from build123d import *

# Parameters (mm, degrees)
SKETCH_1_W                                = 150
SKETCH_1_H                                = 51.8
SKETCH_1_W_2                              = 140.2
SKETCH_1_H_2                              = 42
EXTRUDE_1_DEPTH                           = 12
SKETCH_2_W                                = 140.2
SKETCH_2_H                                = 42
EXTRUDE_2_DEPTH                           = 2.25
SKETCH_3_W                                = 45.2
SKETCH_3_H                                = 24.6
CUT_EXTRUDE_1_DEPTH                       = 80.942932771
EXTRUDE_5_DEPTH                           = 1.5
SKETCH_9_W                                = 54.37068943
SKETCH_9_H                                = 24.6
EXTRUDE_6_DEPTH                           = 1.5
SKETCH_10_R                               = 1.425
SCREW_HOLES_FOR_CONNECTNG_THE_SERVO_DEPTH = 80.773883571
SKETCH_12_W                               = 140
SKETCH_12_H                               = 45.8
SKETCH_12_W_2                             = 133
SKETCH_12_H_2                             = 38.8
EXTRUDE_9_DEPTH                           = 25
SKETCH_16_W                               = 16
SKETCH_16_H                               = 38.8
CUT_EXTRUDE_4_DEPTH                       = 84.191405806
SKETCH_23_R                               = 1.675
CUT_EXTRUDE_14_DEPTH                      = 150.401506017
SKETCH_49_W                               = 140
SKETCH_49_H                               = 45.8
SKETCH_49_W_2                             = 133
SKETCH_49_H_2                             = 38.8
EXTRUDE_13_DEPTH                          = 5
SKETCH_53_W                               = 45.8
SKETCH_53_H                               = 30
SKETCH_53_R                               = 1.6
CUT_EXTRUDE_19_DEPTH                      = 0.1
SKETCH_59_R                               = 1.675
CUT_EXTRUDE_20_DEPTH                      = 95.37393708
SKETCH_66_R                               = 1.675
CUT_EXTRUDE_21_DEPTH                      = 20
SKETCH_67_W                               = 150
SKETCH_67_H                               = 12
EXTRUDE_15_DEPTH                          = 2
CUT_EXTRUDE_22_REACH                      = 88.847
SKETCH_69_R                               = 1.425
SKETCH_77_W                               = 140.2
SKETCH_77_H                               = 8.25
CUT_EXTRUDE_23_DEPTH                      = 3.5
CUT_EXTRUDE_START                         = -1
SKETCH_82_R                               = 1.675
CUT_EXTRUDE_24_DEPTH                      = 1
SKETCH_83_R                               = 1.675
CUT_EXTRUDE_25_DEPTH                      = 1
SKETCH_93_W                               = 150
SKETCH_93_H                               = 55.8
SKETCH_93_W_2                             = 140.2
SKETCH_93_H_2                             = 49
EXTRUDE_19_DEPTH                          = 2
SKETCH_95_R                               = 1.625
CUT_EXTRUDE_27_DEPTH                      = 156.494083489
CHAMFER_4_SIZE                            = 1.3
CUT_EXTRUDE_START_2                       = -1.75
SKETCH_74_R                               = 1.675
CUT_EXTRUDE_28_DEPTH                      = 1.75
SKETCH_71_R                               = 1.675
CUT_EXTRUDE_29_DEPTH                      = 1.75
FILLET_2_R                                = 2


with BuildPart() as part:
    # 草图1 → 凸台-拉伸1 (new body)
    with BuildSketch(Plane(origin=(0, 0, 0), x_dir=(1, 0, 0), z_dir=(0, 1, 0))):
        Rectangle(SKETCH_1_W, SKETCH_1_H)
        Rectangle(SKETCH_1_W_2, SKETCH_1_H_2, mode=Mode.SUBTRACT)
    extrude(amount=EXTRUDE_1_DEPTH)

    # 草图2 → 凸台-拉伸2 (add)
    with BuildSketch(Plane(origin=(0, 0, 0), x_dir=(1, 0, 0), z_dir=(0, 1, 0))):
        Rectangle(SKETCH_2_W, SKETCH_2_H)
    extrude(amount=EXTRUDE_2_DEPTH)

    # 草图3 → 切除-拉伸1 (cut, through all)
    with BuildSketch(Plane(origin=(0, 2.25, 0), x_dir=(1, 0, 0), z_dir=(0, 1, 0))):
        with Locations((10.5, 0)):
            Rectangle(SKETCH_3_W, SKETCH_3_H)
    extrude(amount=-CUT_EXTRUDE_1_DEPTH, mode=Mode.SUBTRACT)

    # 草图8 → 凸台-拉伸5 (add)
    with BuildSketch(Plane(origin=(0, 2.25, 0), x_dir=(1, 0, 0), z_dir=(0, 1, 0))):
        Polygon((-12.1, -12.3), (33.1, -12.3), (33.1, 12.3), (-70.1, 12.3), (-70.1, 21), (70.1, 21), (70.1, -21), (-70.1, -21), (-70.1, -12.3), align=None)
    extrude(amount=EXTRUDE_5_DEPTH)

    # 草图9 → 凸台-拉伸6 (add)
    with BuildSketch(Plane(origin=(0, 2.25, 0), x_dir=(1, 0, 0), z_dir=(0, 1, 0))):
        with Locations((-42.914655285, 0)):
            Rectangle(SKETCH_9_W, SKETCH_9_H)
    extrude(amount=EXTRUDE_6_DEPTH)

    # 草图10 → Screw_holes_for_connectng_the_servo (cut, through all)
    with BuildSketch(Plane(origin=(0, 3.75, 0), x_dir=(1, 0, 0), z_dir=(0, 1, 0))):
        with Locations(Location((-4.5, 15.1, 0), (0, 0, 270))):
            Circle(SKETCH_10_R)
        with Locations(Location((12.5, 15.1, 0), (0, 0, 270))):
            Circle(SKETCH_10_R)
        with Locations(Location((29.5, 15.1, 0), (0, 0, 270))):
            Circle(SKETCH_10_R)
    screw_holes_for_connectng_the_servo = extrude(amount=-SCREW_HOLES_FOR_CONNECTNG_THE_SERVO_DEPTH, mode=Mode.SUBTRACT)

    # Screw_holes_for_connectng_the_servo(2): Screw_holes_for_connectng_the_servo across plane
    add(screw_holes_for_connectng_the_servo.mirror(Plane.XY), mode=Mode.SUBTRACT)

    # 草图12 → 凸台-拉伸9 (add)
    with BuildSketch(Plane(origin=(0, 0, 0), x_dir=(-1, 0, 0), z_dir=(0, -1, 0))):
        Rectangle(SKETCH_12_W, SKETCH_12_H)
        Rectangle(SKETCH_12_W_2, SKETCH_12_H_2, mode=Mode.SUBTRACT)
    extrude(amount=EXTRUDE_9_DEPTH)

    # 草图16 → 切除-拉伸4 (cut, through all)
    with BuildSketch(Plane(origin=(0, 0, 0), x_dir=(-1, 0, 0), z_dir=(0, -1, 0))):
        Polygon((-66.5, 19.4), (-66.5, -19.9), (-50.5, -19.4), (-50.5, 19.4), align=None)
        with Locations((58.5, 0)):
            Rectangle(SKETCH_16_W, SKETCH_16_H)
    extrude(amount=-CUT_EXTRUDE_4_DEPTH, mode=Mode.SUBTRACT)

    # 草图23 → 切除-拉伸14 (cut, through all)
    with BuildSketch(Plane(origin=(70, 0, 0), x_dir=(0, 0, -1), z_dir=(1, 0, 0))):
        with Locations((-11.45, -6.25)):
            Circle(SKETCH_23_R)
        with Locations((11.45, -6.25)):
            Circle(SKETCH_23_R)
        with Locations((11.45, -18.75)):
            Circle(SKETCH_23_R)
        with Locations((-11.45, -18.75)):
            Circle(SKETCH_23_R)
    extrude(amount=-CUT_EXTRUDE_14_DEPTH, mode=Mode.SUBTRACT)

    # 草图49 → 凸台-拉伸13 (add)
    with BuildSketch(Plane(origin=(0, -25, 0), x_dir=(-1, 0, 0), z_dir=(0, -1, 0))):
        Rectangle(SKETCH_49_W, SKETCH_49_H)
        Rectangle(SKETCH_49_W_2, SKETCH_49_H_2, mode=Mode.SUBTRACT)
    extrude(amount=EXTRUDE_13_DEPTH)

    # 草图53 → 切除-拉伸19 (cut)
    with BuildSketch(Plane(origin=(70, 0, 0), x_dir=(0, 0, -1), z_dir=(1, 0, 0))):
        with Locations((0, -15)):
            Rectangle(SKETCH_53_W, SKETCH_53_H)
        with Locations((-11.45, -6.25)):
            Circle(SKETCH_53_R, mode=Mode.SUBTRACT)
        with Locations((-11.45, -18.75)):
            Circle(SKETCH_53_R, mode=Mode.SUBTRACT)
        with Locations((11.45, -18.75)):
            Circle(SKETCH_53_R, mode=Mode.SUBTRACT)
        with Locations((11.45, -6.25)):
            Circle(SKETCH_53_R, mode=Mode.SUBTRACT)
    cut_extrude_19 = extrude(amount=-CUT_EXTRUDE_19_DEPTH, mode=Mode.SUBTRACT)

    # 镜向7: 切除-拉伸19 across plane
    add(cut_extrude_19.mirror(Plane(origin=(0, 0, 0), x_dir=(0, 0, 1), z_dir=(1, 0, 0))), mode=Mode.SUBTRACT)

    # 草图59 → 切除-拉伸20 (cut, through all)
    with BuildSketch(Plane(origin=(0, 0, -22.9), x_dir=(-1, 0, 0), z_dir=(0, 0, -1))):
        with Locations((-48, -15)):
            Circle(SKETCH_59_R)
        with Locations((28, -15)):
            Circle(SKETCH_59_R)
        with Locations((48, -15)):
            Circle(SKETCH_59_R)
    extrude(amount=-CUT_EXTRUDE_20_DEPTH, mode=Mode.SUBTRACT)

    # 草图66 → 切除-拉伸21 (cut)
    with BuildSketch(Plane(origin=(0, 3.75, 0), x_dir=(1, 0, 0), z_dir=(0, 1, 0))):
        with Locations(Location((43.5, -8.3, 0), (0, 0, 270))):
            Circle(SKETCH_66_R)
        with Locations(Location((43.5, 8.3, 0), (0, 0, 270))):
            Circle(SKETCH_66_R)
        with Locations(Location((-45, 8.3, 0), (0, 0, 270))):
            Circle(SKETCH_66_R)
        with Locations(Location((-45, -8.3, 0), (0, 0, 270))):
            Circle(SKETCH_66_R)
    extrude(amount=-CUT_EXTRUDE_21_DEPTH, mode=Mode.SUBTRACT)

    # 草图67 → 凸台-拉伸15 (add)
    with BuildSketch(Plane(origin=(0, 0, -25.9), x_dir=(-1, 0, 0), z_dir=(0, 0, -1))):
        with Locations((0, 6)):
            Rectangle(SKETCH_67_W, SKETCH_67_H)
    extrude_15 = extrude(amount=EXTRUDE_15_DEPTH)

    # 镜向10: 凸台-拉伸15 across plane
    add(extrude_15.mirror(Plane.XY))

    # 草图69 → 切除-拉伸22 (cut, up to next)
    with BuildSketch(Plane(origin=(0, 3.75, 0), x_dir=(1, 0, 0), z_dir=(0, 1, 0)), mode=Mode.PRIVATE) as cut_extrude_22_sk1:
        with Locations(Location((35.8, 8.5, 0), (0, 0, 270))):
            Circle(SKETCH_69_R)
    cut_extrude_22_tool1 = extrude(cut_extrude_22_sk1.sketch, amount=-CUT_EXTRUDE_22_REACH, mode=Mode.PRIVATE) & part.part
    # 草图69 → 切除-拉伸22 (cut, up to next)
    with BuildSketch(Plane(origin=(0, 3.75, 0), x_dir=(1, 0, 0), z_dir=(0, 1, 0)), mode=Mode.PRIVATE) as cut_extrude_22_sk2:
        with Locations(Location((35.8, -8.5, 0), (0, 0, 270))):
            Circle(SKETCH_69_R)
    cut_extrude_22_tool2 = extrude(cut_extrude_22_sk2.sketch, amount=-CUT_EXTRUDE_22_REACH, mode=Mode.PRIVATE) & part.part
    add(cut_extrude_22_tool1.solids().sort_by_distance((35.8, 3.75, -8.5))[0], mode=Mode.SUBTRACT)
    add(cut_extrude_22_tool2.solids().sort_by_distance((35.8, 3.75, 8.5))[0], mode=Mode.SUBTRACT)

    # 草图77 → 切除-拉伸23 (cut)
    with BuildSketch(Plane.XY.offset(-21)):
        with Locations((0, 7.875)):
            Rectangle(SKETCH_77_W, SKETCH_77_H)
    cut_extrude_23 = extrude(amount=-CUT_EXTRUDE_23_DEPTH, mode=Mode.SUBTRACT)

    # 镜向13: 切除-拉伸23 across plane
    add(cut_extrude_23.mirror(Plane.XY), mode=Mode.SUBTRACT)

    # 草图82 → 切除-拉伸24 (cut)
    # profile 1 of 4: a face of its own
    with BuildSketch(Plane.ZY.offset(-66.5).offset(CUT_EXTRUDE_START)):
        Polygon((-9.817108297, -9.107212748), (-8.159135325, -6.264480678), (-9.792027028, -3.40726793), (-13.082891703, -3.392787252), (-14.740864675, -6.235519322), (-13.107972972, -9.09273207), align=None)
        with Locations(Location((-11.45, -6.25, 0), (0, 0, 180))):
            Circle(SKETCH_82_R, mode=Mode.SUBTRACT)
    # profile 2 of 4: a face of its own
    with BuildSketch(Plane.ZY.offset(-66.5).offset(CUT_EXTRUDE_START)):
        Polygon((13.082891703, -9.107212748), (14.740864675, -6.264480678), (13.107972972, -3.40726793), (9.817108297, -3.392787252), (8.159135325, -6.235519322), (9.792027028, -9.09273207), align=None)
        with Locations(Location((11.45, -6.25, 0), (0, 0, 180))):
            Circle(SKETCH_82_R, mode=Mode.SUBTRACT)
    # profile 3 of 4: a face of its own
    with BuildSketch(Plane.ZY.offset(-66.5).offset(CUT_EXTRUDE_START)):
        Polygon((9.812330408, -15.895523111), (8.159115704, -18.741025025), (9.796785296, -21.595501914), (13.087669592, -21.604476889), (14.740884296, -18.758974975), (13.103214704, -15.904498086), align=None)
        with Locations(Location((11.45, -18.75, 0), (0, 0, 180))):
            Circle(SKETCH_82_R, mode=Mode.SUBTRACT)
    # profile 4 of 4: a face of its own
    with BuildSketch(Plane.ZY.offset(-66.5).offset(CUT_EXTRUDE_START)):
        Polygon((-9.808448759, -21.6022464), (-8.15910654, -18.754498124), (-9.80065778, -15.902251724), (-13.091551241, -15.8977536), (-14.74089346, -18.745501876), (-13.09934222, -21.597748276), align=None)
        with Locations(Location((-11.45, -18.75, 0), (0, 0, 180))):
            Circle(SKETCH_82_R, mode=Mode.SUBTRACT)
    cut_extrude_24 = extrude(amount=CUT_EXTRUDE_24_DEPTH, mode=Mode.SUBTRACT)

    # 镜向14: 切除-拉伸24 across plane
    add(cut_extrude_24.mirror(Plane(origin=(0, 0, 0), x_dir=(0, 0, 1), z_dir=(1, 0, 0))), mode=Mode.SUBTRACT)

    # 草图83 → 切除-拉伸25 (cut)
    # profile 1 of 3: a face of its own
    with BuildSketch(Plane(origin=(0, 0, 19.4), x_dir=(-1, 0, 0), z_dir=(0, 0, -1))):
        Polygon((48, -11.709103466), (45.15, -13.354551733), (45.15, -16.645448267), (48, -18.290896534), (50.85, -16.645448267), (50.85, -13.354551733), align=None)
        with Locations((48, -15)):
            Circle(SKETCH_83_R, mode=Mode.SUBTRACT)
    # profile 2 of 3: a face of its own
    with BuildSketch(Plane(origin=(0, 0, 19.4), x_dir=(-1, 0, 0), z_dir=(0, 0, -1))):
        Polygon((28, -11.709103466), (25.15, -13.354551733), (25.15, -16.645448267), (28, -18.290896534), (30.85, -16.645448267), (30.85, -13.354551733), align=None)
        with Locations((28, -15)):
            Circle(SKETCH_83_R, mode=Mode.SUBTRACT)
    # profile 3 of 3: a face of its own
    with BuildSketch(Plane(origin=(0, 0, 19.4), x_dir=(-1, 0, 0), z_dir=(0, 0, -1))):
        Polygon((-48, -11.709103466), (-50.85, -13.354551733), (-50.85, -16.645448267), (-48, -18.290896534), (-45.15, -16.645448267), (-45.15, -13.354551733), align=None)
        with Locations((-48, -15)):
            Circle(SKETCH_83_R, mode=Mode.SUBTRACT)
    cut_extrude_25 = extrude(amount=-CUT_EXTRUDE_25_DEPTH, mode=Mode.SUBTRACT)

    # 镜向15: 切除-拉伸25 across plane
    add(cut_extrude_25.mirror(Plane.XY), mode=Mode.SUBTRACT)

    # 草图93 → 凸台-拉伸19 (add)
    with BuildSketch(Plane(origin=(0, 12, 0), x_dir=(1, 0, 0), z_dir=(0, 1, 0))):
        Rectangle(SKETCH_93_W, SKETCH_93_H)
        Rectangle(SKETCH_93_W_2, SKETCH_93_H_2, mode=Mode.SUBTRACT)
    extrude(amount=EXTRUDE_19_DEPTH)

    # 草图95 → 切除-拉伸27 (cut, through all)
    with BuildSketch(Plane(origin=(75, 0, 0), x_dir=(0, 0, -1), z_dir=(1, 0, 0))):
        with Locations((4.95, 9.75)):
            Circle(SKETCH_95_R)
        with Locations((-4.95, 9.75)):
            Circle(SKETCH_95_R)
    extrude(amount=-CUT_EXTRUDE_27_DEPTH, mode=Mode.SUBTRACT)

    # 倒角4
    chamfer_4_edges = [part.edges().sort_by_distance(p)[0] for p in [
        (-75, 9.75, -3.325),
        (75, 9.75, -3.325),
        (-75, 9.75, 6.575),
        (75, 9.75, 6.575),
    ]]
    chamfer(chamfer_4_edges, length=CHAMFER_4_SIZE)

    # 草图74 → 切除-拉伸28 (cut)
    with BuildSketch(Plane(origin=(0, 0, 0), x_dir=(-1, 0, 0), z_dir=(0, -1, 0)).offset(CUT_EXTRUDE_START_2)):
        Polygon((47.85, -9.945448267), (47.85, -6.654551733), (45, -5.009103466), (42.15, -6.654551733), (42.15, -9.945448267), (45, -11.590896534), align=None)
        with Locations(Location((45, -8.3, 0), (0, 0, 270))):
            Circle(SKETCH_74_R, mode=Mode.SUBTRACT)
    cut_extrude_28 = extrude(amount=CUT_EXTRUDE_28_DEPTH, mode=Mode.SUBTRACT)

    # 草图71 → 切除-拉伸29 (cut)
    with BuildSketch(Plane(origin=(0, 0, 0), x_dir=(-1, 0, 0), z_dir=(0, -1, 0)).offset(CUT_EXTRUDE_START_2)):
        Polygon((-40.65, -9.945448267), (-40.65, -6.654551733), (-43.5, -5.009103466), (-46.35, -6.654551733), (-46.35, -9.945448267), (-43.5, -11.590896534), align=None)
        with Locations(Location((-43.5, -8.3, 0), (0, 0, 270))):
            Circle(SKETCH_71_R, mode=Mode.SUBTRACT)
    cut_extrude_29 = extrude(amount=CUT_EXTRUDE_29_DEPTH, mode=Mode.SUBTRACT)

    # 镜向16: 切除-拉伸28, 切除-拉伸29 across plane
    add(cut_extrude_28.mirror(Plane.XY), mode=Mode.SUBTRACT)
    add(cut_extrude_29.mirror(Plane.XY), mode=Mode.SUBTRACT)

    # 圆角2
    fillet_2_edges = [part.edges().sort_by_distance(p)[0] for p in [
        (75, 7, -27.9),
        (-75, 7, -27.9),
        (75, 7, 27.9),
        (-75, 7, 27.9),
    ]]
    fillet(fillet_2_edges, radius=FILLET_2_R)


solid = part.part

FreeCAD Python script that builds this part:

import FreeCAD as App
import Part
import Sketcher

V = App.Vector
Q = App.Units.Quantity


def edges_at(feature, points):
    """Names of the edges that pass closest to the given points."""
    edges = feature.Shape.Edges
    near = lambda p: min(range(len(edges)), key=lambda i: edges[i].distToShape(Part.Vertex(*p))[0])
    return sorted({f"Edge{near(p) + 1}" for p in points})


def add_polygon(sketch, points):
    """Adds a closed chain of lines whose ends are joined by coincident constraints."""
    first, n = sketch.GeometryCount, len(points)
    for a, b in zip(points, points[1:] + points[:1]):
        sketch.addGeometry(Part.LineSegment(App.Vector(*a, 0), App.Vector(*b, 0)), False)
    for i in range(n):
        sketch.addConstraint(Sketcher.Constraint("Coincident", first + i, 2, first + (i + 1) % n, 1))

doc = App.newDocument("Part")
body = doc.addObject("PartDesign::Body", "Body")

# Sketch on XZ plane
sketch1 = body.newObject("Sketcher::SketchObject", "Sketch")
sketch1.AttachmentSupport = (doc.getObject("XZ_Plane"), [""])
sketch1.MapMode = "FlatFace"
add_polygon(sketch1, [(-75, -26), (-75, 26), (75, 26), (75, -26)])  # lines 0-3
add_polygon(sketch1, [(70, 21), (-70, 21), (-70, -21), (70, -21)])  # lines 4-7
sketch1.addConstraint(Sketcher.Constraint("Vertical", 0))
sketch1.addConstraint(Sketcher.Constraint("Horizontal", 1))
sketch1.addConstraint(Sketcher.Constraint("Vertical", 2))
sketch1.addConstraint(Sketcher.Constraint("Horizontal", 3))
sketch1.addConstraint(Sketcher.Constraint("Horizontal", 4))
sketch1.addConstraint(Sketcher.Constraint("Vertical", 5))
sketch1.addConstraint(Sketcher.Constraint("Horizontal", 6))
sketch1.addConstraint(Sketcher.Constraint("Vertical", 7))
sketch1.addConstraint(Sketcher.Constraint("Symmetric", 0, 2, 2, 2, -1, 1))
sketch1.addConstraint(Sketcher.Constraint("Symmetric", 4, 2, 6, 2, -1, 1))
sketch1.addConstraint(Sketcher.Constraint("DistanceX", 1, 1, 1, 2, Q("150 mm")))
sketch1.addConstraint(Sketcher.Constraint("DistanceY", 5, 2, 5, 1, Q("42 mm")))
sketch1.addConstraint(Sketcher.Constraint("DistanceX", 4, 2, 4, 1, Q("140.2 mm")))
sketch1.addConstraint(Sketcher.Constraint("DistanceY", 0, 1, 0, 2, Q("51.8 mm")))
pad1 = body.newObject("PartDesign::Pad", "Pad")
pad1.Profile = sketch1
pad1.Length = 12
pad1.Reversed = True

# Sketch on XZ plane
sketch2 = body.newObject("Sketcher::SketchObject", "Sketch001")
sketch2.AttachmentSupport = (doc.getObject("XZ_Plane"), [""])
sketch2.MapMode = "FlatFace"
add_polygon(sketch2, [(-70, -21), (-70, 21), (70, 21), (70, -21)])  # lines 0-3
sketch2.addConstraint(Sketcher.Constraint("Vertical", 0))
sketch2.addConstraint(Sketcher.Constraint("Horizontal", 1))
sketch2.addConstraint(Sketcher.Constraint("Vertical", 2))
sketch2.addConstraint(Sketcher.Constraint("Horizontal", 3))
sketch2.addConstraint(Sketcher.Constraint("Symmetric", 0, 2, 2, 2, -1, 1))
sketch2.addConstraint(Sketcher.Constraint("DistanceY", 0, 1, 0, 2, Q("42 mm")))
sketch2.addConstraint(Sketcher.Constraint("DistanceX", 1, 1, 1, 2, Q("140.2 mm")))
pad2 = body.newObject("PartDesign::Pad", "Pad001")
pad2.Profile = sketch2
pad2.Length = 2.25
pad2.Reversed = True

# Sketch on XZ plane
sketch3 = body.newObject("Sketcher::SketchObject", "Sketch002")
sketch3.AttachmentSupport = (doc.getObject("XZ_Plane"), [""])
sketch3.MapMode = "FlatFace"
sketch3.AttachmentOffset = App.Placement(V(0, 0, -2.25), App.Rotation())
add_polygon(sketch3, [(-12, -12), (-12, 12), (33, 12), (33, -12)])  # lines 0-3
sketch3.addConstraint(Sketcher.Constraint("Vertical", 0))
sketch3.addConstraint(Sketcher.Constraint("Horizontal", 1))
sketch3.addConstraint(Sketcher.Constraint("Vertical", 2))
sketch3.addConstraint(Sketcher.Constraint("Horizontal", 3))
sketch3.addConstraint(Sketcher.Constraint("DistanceX", 1, 1, 1, 2, Q("45.2 mm")))
sketch3.addConstraint(Sketcher.Constraint("DistanceY", 0, 1, 0, 2, Q("24.6 mm")))
sketch3.addConstraint(Sketcher.Constraint("DistanceX", 0, 2, -1, 1, Q("12.1 mm")))
sketch3.addConstraint(Sketcher.Constraint("DistanceY", -1, 1, 0, 2, Q("12.3 mm")))
pocket1 = body.newObject("PartDesign::Pocket", "Pocket")
pocket1.Profile = sketch3
pocket1.Type = "ThroughAll"
pocket1.Reversed = True

# Sketch on XZ plane
sketch4 = body.newObject("Sketcher::SketchObject", "Sketch003")
sketch4.AttachmentSupport = (doc.getObject("XZ_Plane"), [""])
sketch4.MapMode = "FlatFace"
sketch4.AttachmentOffset = App.Placement(V(0, 0, -2.25), App.Rotation())
add_polygon(sketch4, [(33, 12), (-70, 12), (-70, 21), (70, 21), (70, -21), (-70, -21), (-70, -12), (33, -12)])  # lines 0-7
sketch4.addConstraint(Sketcher.Constraint("Horizontal", 0))
sketch4.addConstraint(Sketcher.Constraint("Vertical", 1))
sketch4.addConstraint(Sketcher.Constraint("Horizontal", 2))
sketch4.addConstraint(Sketcher.Constraint("Vertical", 3))
sketch4.addConstraint(Sketcher.Constraint("Horizontal", 4))
sketch4.addConstraint(Sketcher.Constraint("Vertical", 5))
sketch4.addConstraint(Sketcher.Constraint("Horizontal", 6))
sketch4.addConstraint(Sketcher.Constraint("Vertical", 7))
sketch4.addConstraint(Sketcher.Constraint("Symmetric", 1, 2, 3, 2, -1, 1))
sketch4.addConstraint(Sketcher.Constraint("Symmetric", 0, 2, 5, 2, -1))
sketch4.addConstraint(Sketcher.Constraint("DistanceY", 3, 2, 3, 1, Q("42 mm")))
sketch4.addConstraint(Sketcher.Constraint("DistanceX", 0, 2, 0, 1, Q("103.2 mm")))
sketch4.addConstraint(Sketcher.Constraint("DistanceX", 2, 1, 2, 2, Q("140.2 mm")))
sketch4.addConstraint(Sketcher.Constraint("DistanceY", 1, 1, 1, 2, Q("8.7 mm")))
pad3 = body.newObject("PartDesign::Pad", "Pad002")
pad3.Profile = sketch4
pad3.Length = 1.5
pad3.Reversed = True

# Sketch on XZ plane
sketch5 = body.newObject("Sketcher::SketchObject", "Sketch004")
sketch5.AttachmentSupport = (doc.getObject("XZ_Plane"), [""])
sketch5.MapMode = "FlatFace"
sketch5.AttachmentOffset = App.Placement(V(0, 0, -2.25), App.Rotation())
add_polygon(sketch5, [(-70, -12), (-70, 12), (-16, 12), (-16, -12)])  # lines 0-3
sketch5.addConstraint(Sketcher.Constraint("Vertical", 0))
sketch5.addConstraint(Sketcher.Constraint("Horizontal", 1))
sketch5.addConstraint(Sketcher.Constraint("Vertical", 2))
sketch5.addConstraint(Sketcher.Constraint("Horizontal", 3))
sketch5.addConstraint(Sketcher.Constraint("DistanceY", 0, 1, 0, 2, Q("24.6 mm")))
sketch5.addConstraint(Sketcher.Constraint("DistanceX", 0, 2, -1, 1, Q("70.1 mm")))
sketch5.addConstraint(Sketcher.Constraint("DistanceY", -1, 1, 0, 2, Q("12.3 mm")))
sketch5.addConstraint(Sketcher.Constraint("DistanceX", 1, 1, 1, 2, Q("54.370689 mm")))
pad4 = body.newObject("PartDesign::Pad", "Pad003")
pad4.Profile = sketch5
pad4.Length = 1.5
pad4.Reversed = True

# Sketch on XZ plane
sketch6 = body.newObject("Sketcher::SketchObject", "Sketch005")
sketch6.AttachmentSupport = (doc.getObject("XZ_Plane"), [""])
sketch6.MapMode = "FlatFace"
sketch6.AttachmentOffset = App.Placement(V(0, 0, -3.75), App.Rotation())
sketch6.addGeometry(Part.Circle(V(-4.5, -15.1, 0), V(0, 0, 1), 1.4), False)
sketch6.addGeometry(Part.Circle(V(12.5, -15.1, 0), V(0, 0, 1), 1.4), False)
sketch6.addGeometry(Part.Circle(V(29.5, -15.1, 0), V(0, 0, 1), 1.4), False)
sketch6.addConstraint(Sketcher.Constraint("Equal", 0, 1))
sketch6.addConstraint(Sketcher.Constraint("Equal", 1, 2))
sketch6.addConstraint(Sketcher.Constraint("Horizontal", 0, 3, 1, 3))
sketch6.addConstraint(Sketcher.Constraint("Horizontal", 1, 3, 2, 3))
sketch6.addConstraint(Sketcher.Constraint("Diameter", 0, Q("2.85 mm")))
sketch6.addConstraint(Sketcher.Constraint("DistanceX", 0, 3, 1, 3, Q("17 mm")))
sketch6.addConstraint(Sketcher.Constraint("DistanceX", 1, 3, 2, 3, Q("17 mm")))
sketch6.addConstraint(Sketcher.Constraint("DistanceX", 0, 3, -1, 1, Q("4.5 mm")))
sketch6.addConstraint(Sketcher.Constraint("DistanceY", 0, 3, -1, 1, Q("15.1 mm")))
pocket2 = body.newObject("PartDesign::Pocket", "Pocket001")
pocket2.Profile = sketch6
pocket2.Type = "ThroughAll"
pocket2.Reversed = True
doc.recompute()

mirrored = body.newObject("PartDesign::Mirrored", "Mirrored")
mirrored.Originals = [pocket2]
mirrored.MirrorPlane = (doc.getObject("XY_Plane"), [""])
body.Tip = mirrored

# Sketch on XZ plane
sketch7 = body.newObject("Sketcher::SketchObject", "Sketch006")
sketch7.AttachmentSupport = (doc.getObject("XZ_Plane"), [""])
sketch7.MapMode = "FlatFace"
add_polygon(sketch7, [(70, -23), (70, 23), (-70, 23), (-70, -23)])  # lines 0-3
add_polygon(sketch7, [(-66, 19), (66, 19), (66, -19), (-66, -19)])  # lines 4-7
sketch7.addConstraint(Sketcher.Constraint("Vertical", 0))
sketch7.addConstraint(Sketcher.Constraint("Horizontal", 1))
sketch7.addConstraint(Sketcher.Constraint("Vertical", 2))
sketch7.addConstraint(Sketcher.Constraint("Horizontal", 3))
sketch7.addConstraint(Sketcher.Constraint("Horizontal", 4))
sketch7.addConstraint(Sketcher.Constraint("Vertical", 5))
sketch7.addConstraint(Sketcher.Constraint("Horizontal", 6))
sketch7.addConstraint(Sketcher.Constraint("Vertical", 7))
sketch7.addConstraint(Sketcher.Constraint("Symmetric", 0, 2, 2, 2, -1, 1))
sketch7.addConstraint(Sketcher.Constraint("Symmetric", 4, 2, 6, 2, -1, 1))
sketch7.addConstraint(Sketcher.Constraint("DistanceX", 1, 2, 1, 1, Q("140 mm")))
sketch7.addConstraint(Sketcher.Constraint("DistanceX", 4, 1, 4, 2, Q("133 mm")))
sketch7.addConstraint(Sketcher.Constraint("DistanceY", 0, 1, 0, 2, Q("45.8 mm")))
sketch7.addConstraint(Sketcher.Constraint("DistanceY", 5, 2, 5, 1, Q("38.8 mm")))
pad5 = body.newObject("PartDesign::Pad", "Pad004")
pad5.Profile = sketch7
pad5.Length = 25

# Sketch on XZ plane
sketch8 = body.newObject("Sketcher::SketchObject", "Sketch007")
sketch8.AttachmentSupport = (doc.getObject("XZ_Plane"), [""])
sketch8.MapMode = "FlatFace"
add_polygon(sketch8, [(66, -19), (66, 20), (50, 19), (50, -19)])  # lines 0-3
add_polygon(sketch8, [(-50, -19), (-50, 19), (-66, 19), (-66, -19)])  # lines 4-7
sketch8.addConstraint(Sketcher.Constraint("Vertical", 0))
sketch8.addConstraint(Sketcher.Constraint("Vertical", 2))
sketch8.addConstraint(Sketcher.Constraint("Horizontal", 3))
sketch8.addConstraint(Sketcher.Constraint("Vertical", 4))
sketch8.addConstraint(Sketcher.Constraint("Horizontal", 5))
sketch8.addConstraint(Sketcher.Constraint("Vertical", 6))
sketch8.addConstraint(Sketcher.Constraint("Horizontal", 7))
sketch8.addConstraint(Sketcher.Constraint("Symmetric", 2, 2, 4, 2, -1, 1))
sketch8.addConstraint(Sketcher.Constraint("Symmetric", 3, 2, 6, 2, -2))
sketch8.addConstraint(Sketcher.Constraint("Horizontal", 1, 2, 4, 2))
sketch8.addConstraint(Sketcher.Constraint("DistanceX", 3, 1, 3, 2, Q("16 mm")))
sketch8.addConstraint(Sketcher.Constraint("DistanceY", 0, 1, 0, 2, Q("39.3 mm")))
sketch8.addConstraint(Sketcher.Constraint("DistanceY", 2, 2, 2, 1, Q("38.8 mm")))
sketch8.addConstraint(Sketcher.Constraint("DistanceX", 4, 2, 1, 2, Q("101 mm")))
pocket3 = body.newObject("PartDesign::Pocket", "Pocket002")
pocket3.Profile = sketch8
pocket3.Type = "ThroughAll"

# Sketch on YZ plane
sketch9 = body.newObject("Sketcher::SketchObject", "Sketch008")
sketch9.AttachmentSupport = (doc.getObject("YZ_Plane"), [""])
sketch9.MapMode = "FlatFace"
sketch9.AttachmentOffset = App.Placement(V(0, 0, 70), App.Rotation())
sketch9.addGeometry(Part.Circle(V(-6.2, 11.4, 0), V(0, 0, 1), 1.7), False)
sketch9.addGeometry(Part.Circle(V(-6.2, -11.4, 0), V(0, 0, 1), 1.7), False)
sketch9.addGeometry(Part.Circle(V(-18.8, -11.4, 0), V(0, 0, 1), 1.7), False)
sketch9.addGeometry(Part.Circle(V(-18.8, 11.4, 0), V(0, 0, 1), 1.7), False)
sketch9.addConstraint(Sketcher.Constraint("Equal", 0, 1))
sketch9.addConstraint(Sketcher.Constraint("Equal", 1, 2))
sketch9.addConstraint(Sketcher.Constraint("Equal", 2, 3))
sketch9.addConstraint(Sketcher.Constraint("Symmetric", 0, 3, 1, 3, -1))
sketch9.addConstraint(Sketcher.Constraint("Symmetric", 2, 3, 3, 3, -1))
sketch9.addConstraint(Sketcher.Constraint("Horizontal", 1, 3, 2, 3))
sketch9.addConstraint(Sketcher.Constraint("Diameter", 0, Q("3.35 mm")))
sketch9.addConstraint(Sketcher.Constraint("DistanceY", 1, 3, 0, 3, Q("22.9 mm")))
sketch9.addConstraint(Sketcher.Constraint("DistanceX", 2, 3, 1, 3, Q("12.5 mm")))
sketch9.addConstraint(Sketcher.Constraint("DistanceX", 0, 3, -1, 1, Q("6.25 mm")))
pocket4 = body.newObject("PartDesign::Pocket", "Pocket003")
pocket4.Profile = sketch9
pocket4.Type = "ThroughAll"

# Sketch on XZ plane
sketch10 = body.newObject("Sketcher::SketchObject", "Sketch009")
sketch10.AttachmentSupport = (doc.getObject("XZ_Plane"), [""])
sketch10.MapMode = "FlatFace"
sketch10.AttachmentOffset = App.Placement(V(0, 0, 25), App.Rotation())
add_polygon(sketch10, [(70, -23), (70, 23), (-70, 23), (-70, -23)])  # lines 0-3
add_polygon(sketch10, [(-66, 19), (66, 19), (66, -19), (-66, -19)])  # lines 4-7
sketch10.addConstraint(Sketcher.Constraint("Vertical", 0))
sketch10.addConstraint(Sketcher.Constraint("Horizontal", 1))
sketch10.addConstraint(Sketcher.Constraint("Vertical", 2))
sketch10.addConstraint(Sketcher.Constraint("Horizontal", 3))
sketch10.addConstraint(Sketcher.Constraint("Horizontal", 4))
sketch10.addConstraint(Sketcher.Constraint("Vertical", 5))
sketch10.addConstraint(Sketcher.Constraint("Horizontal", 6))
sketch10.addConstraint(Sketcher.Constraint("Vertical", 7))
sketch10.addConstraint(Sketcher.Constraint("Symmetric", 0, 2, 2, 2, -1, 1))
sketch10.addConstraint(Sketcher.Constraint("Symmetric", 4, 2, 6, 2, -1, 1))
sketch10.addConstraint(Sketcher.Constraint("DistanceX", 1, 2, 1, 1, Q("140 mm")))
sketch10.addConstraint(Sketcher.Constraint("DistanceX", 4, 1, 4, 2, Q("133 mm")))
sketch10.addConstraint(Sketcher.Constraint("DistanceY", 0, 1, 0, 2, Q("45.8 mm")))
sketch10.addConstraint(Sketcher.Constraint("DistanceY", 5, 2, 5, 1, Q("38.8 mm")))
pad6 = body.newObject("PartDesign::Pad", "Pad005")
pad6.Profile = sketch10
pad6.Length = 5

# Sketch on YZ plane
sketch11 = body.newObject("Sketcher::SketchObject", "Sketch010")
sketch11.AttachmentSupport = (doc.getObject("YZ_Plane"), [""])
sketch11.MapMode = "FlatFace"
sketch11.AttachmentOffset = App.Placement(V(0, 0, 70), App.Rotation())
add_polygon(sketch11, [(0, 22.9), (-30, 22.9), (-30, -22.9), (0, -22.9)])  # lines 0-3
sketch11.addGeometry(Part.Circle(V(-18.8, 11.4, 0), V(0, 0, 1), 1.6), False)  # 4
sketch11.addGeometry(Part.Circle(V(-18.8, -11.4, 0), V(0, 0, 1), 1.6), False)  # 5
sketch11.addGeometry(Part.Circle(V(-6.2, 11.4, 0), V(0, 0, 1), 1.6), False)  # 6
sketch11.addGeometry(Part.Circle(V(-6.2, -11.4, 0), V(0, 0, 1), 1.6), False)  # 7
sketch11.addConstraint(Sketcher.Constraint("Horizontal", 0))
sketch11.addConstraint(Sketcher.Constraint("Vertical", 1))
sketch11.addConstraint(Sketcher.Constraint("Horizontal", 2))
sketch11.addConstraint(Sketcher.Constraint("Vertical", 3))
sketch11.addConstraint(Sketcher.Constraint("Equal", 4, 5))
sketch11.addConstraint(Sketcher.Constraint("Equal", 5, 6))
sketch11.addConstraint(Sketcher.Constraint("Equal", 6, 7))
sketch11.addConstraint(Sketcher.Constraint("Symmetric", 2, 2, 3, 2, -1, 1))
sketch11.addConstraint(Sketcher.Constraint("Symmetric", 4, 3, 5, 3, -1))
sketch11.addConstraint(Sketcher.Constraint("Symmetric", 6, 3, 7, 3, -1))
sketch11.addConstraint(Sketcher.Constraint("Horizontal", 4, 3, 6, 3))
sketch11.addConstraint(Sketcher.Constraint("Diameter", 4, Q("3.2 mm")))
sketch11.addConstraint(Sketcher.Constraint("DistanceX", 0, 2, 0, 1, Q("30 mm")))
sketch11.addConstraint(Sketcher.Constraint("DistanceY", 1, 2, 1, 1, Q("45.8 mm")))
sketch11.addConstraint(Sketcher.Constraint("DistanceY", 5, 3, 4, 3, Q("22.9 mm")))
sketch11.addConstraint(Sketcher.Constraint("DistanceX", 4, 3, 6, 3, Q("12.5 mm")))
sketch11.addConstraint(Sketcher.Constraint("DistanceX", 4, 3, -1, 1, Q("18.75 mm")))
pocket5 = body.newObject("PartDesign::Pocket", "Pocket004")
pocket5.Profile = sketch11
pocket5.Length = 0.1
doc.recompute()

mirrored2 = body.newObject("PartDesign::Mirrored", "Mirrored001")
mirrored2.Originals = [pocket5]
mirrored2.MirrorPlane = (doc.getObject("YZ_Plane"), [""])
body.Tip = mirrored2

# Sketch on XY plane
sketch12 = body.newObject("Sketcher::SketchObject", "Sketch011")
sketch12.AttachmentSupport = (doc.getObject("XY_Plane"), [""])
sketch12.MapMode = "FlatFace"
sketch12.AttachmentOffset = App.Placement(V(0, 0, -22.9), App.Rotation())
sketch12.addGeometry(Part.Circle(V(48, -15, 0), V(0, 0, 1), 1.7), False)
sketch12.addGeometry(Part.Circle(V(-28, -15, 0), V(0, 0, 1), 1.7), False)
sketch12.addGeometry(Part.Circle(V(-48, -15, 0), V(0, 0, 1), 1.7), False)
sketch12.addConstraint(Sketcher.Constraint("Equal", 0, 1))
sketch12.addConstraint(Sketcher.Constraint("Equal", 1, 2))
sketch12.addConstraint(Sketcher.Constraint("Symmetric", 0, 3, 2, 3, -2))
sketch12.addConstraint(Sketcher.Constraint("Horizontal", 0, 3, 1, 3))
sketch12.addConstraint(Sketcher.Constraint("Diameter", 0, Q("3.35 mm")))
sketch12.addConstraint(Sketcher.Constraint("DistanceX", -1, 1, 0, 3, Q("48 mm")))
sketch12.addConstraint(Sketcher.Constraint("DistanceY", 0, 3, -1, 1, Q("15 mm")))
sketch12.addConstraint(Sketcher.Constraint("DistanceX", 1, 3, -1, 1, Q("28 mm")))
pocket6 = body.newObject("PartDesign::Pocket", "Pocket005")
pocket6.Profile = sketch12
pocket6.Type = "ThroughAll"
pocket6.Reversed = True

# Sketch on XZ plane
sketch13 = body.newObject("Sketcher::SketchObject", "Sketch012")
sketch13.AttachmentSupport = (doc.getObject("XZ_Plane"), [""])
sketch13.MapMode = "FlatFace"
sketch13.AttachmentOffset = App.Placement(V(0, 0, -3.75), App.Rotation())
sketch13.addGeometry(Part.Circle(V(43.5, 8.3, 0), V(0, 0, 1), 1.7), False)
sketch13.addGeometry(Part.Circle(V(43.5, -8.3, 0), V(0, 0, 1), 1.7), False)
sketch13.addGeometry(Part.Circle(V(-45, -8.3, 0), V(0, 0, 1), 1.7), False)
sketch13.addGeometry(Part.Circle(V(-45, 8.3, 0), V(0, 0, 1), 1.7), False)
sketch13.addConstraint(Sketcher.Constraint("Equal", 0, 1))
sketch13.addConstraint(Sketcher.Constraint("Equal", 1, 2))
sketch13.addConstraint(Sketcher.Constraint("Equal", 2, 3))
sketch13.addConstraint(Sketcher.Constraint("Symmetric", 0, 3, 1, 3, -1))
sketch13.addConstraint(Sketcher.Constraint("Symmetric", 2, 3, 3, 3, -1))
sketch13.addConstraint(Sketcher.Constraint("Horizontal", 1, 3, 2, 3))
sketch13.addConstraint(Sketcher.Constraint("Diameter", 0, Q("3.35 mm")))
sketch13.addConstraint(Sketcher.Constraint("DistanceX", 2, 3, -1, 1, Q("45 mm")))
sketch13.addConstraint(Sketcher.Constraint("DistanceX", -1, 1, 0, 3, Q("43.5 mm")))
sketch13.addConstraint(Sketcher.Constraint("DistanceY", -1, 1, 0, 3, Q("8.3 mm")))
pocket7 = body.newObject("PartDesign::Pocket", "Pocket006")
pocket7.Profile = sketch13
pocket7.Length = 20
pocket7.Reversed = True

# Sketch on XY plane
sketch14 = body.newObject("Sketcher::SketchObject", "Sketch013")
sketch14.AttachmentSupport = (doc.getObject("XY_Plane"), [""])
sketch14.MapMode = "FlatFace"
sketch14.AttachmentOffset = App.Placement(V(0, 0, -25.9), App.Rotation())
add_polygon(sketch14, [(75, 12), (75, 0), (-75, 0), (-75, 12)])  # lines 0-3
sketch14.addConstraint(Sketcher.Constraint("Vertical", 0))
sketch14.addConstraint(Sketcher.Constraint("Horizontal", 1))
sketch14.addConstraint(Sketcher.Constraint("Vertical", 2))
sketch14.addConstraint(Sketcher.Constraint("Horizontal", 3))
sketch14.addConstraint(Sketcher.Constraint("Symmetric", 0, 2, 1, 2, -1, 1))
sketch14.addConstraint(Sketcher.Constraint("DistanceX", 1, 2, 1, 1, Q("150 mm")))
sketch14.addConstraint(Sketcher.Constraint("DistanceY", 0, 2, 0, 1, Q("12 mm")))
pad7 = body.newObject("PartDesign::Pad", "Pad006")
pad7.Profile = sketch14
pad7.Length = 2
pad7.Reversed = True
doc.recompute()

mirrored3 = body.newObject("PartDesign::Mirrored", "Mirrored002")
mirrored3.Originals = [pad7]
mirrored3.MirrorPlane = (doc.getObject("XY_Plane"), [""])
body.Tip = mirrored3

# Sketch on XZ plane
sketch15 = body.newObject("Sketcher::SketchObject", "Sketch014")
sketch15.AttachmentSupport = (doc.getObject("XZ_Plane"), [""])
sketch15.MapMode = "FlatFace"
sketch15.AttachmentOffset = App.Placement(V(0, 0, -3.75), App.Rotation())
sketch15.addGeometry(Part.Circle(V(35.8, -8.5, 0), V(0, 0, 1), 1.4), False)
sketch15.addConstraint(Sketcher.Constraint("Diameter", 0, Q("2.85 mm")))
sketch15.addConstraint(Sketcher.Constraint("DistanceX", -1, 1, 0, 3, Q("35.8 mm")))
sketch15.addConstraint(Sketcher.Constraint("DistanceY", 0, 3, -1, 1, Q("8.5 mm")))
pocket8 = body.newObject("PartDesign::Pocket", "Pocket007")
pocket8.Profile = sketch15
pocket8.Type = "UpToFirst"
pocket8.Reversed = True

# Sketch on XZ plane
sketch16 = body.newObject("Sketcher::SketchObject", "Sketch015")
sketch16.AttachmentSupport = (doc.getObject("XZ_Plane"), [""])
sketch16.MapMode = "FlatFace"
sketch16.AttachmentOffset = App.Placement(V(0, 0, -3.75), App.Rotation())
sketch16.addGeometry(Part.Circle(V(35.8, 8.5, 0), V(0, 0, 1), 1.4), False)
sketch16.addConstraint(Sketcher.Constraint("Diameter", 0, Q("2.85 mm")))
sketch16.addConstraint(Sketcher.Constraint("DistanceX", -1, 1, 0, 3, Q("35.8 mm")))
sketch16.addConstraint(Sketcher.Constraint("DistanceY", -1, 1, 0, 3, Q("8.5 mm")))
pocket9 = body.newObject("PartDesign::Pocket", "Pocket008")
pocket9.Profile = sketch16
pocket9.Type = "UpToFirst"
pocket9.Reversed = True

# Sketch on XY plane
sketch17 = body.newObject("Sketcher::SketchObject", "Sketch016")
sketch17.AttachmentSupport = (doc.getObject("XY_Plane"), [""])
sketch17.MapMode = "FlatFace"
sketch17.AttachmentOffset = App.Placement(V(0, 0, -21), App.Rotation())
add_polygon(sketch17, [(-70, 12), (-70, 4), (70, 4), (70, 12)])  # lines 0-3
sketch17.addConstraint(Sketcher.Constraint("Vertical", 0))
sketch17.addConstraint(Sketcher.Constraint("Horizontal", 1))
sketch17.addConstraint(Sketcher.Constraint("Vertical", 2))
sketch17.addConstraint(Sketcher.Constraint("Horizontal", 3))
sketch17.addConstraint(Sketcher.Constraint("DistanceX", 1, 1, 1, 2, Q("140.2 mm")))
sketch17.addConstraint(Sketcher.Constraint("DistanceY", -1, 1, 2, 2, Q("12 mm")))
sketch17.addConstraint(Sketcher.Constraint("DistanceY", 0, 2, 0, 1, Q("8.25 mm")))
sketch17.addConstraint(Sketcher.Constraint("DistanceX", 0, 2, -1, 1, Q("70.1 mm")))
pocket10 = body.newObject("PartDesign::Pocket", "Pocket009")
pocket10.Profile = sketch17
pocket10.Length = 3.5
doc.recompute()

mirrored4 = body.newObject("PartDesign::Mirrored", "Mirrored003")
mirrored4.Originals = [pocket10]
mirrored4.MirrorPlane = (doc.getObject("XY_Plane"), [""])
body.Tip = mirrored4

# Sketch on YZ plane
sketch18 = body.newObject("Sketcher::SketchObject", "Sketch017")
sketch18.AttachmentSupport = (doc.getObject("YZ_Plane"), [""])
sketch18.MapMode = "FlatFace"
sketch18.AttachmentOffset = App.Placement(V(0, 0, 67.5), App.Rotation())
add_polygon(sketch18, [(-9.107213, -9.817108), (-6.264481, -8.159135), (-3.407268, -9.792027), (-3.392787, -13.082892), (-6.235519, -14.740865), (-9.092732, -13.107973)])  # lines 0-5
sketch18.addGeometry(Part.Circle(V(-6.25, -11.45, 0), V(0, 0, 1), 1.675), False)  # 6
add_polygon(sketch18, [(-9.107213, 13.082892), (-6.264481, 14.740865), (-3.407268, 13.107973), (-3.392787, 9.817108), (-6.235519, 8.159135), (-9.092732, 9.792027)])  # lines 7-12
sketch18.addGeometry(Part.Circle(V(-6.25, 11.45, 0), V(0, 0, 1), 1.675), False)  # 13
add_polygon(sketch18, [(-15.895523, 9.81233), (-18.741025, 8.159116), (-21.595502, 9.796785), (-21.604477, 13.08767), (-18.758975, 14.740884), (-15.904498, 13.103215)])  # lines 14-19
sketch18.addGeometry(Part.Circle(V(-18.75, 11.45, 0), V(0, 0, 1), 1.675), False)  # 20
add_polygon(sketch18, [(-21.602246, -9.808449), (-18.754498, -8.159107), (-15.902252, -9.800658), (-15.897754, -13.091551), (-18.745502, -14.740893), (-21.597748, -13.099342)])  # lines 21-26
sketch18.addGeometry(Part.Circle(V(-18.75, -11.45, 0), V(0, 0, 1), 1.675), False)  # 27
sketch18.addConstraint(Sketcher.Constraint("Equal", 6, 13))
sketch18.addConstraint(Sketcher.Constraint("Equal", 13, 20))
sketch18.addConstraint(Sketcher.Constraint("Equal", 20, 27))
sketch18.addConstraint(Sketcher.Constraint("Symmetric", 6, 3, 13, 3, -1))
sketch18.addConstraint(Sketcher.Constraint("Symmetric", 20, 3, 27, 3, -1))
sketch18.addConstraint(Sketcher.Constraint("Parallel", 0, 3))
sketch18.addConstraint(Sketcher.Constraint("Parallel", 1, 4))
sketch18.addConstraint(Sketcher.Constraint("Parallel", 2, 5))
sketch18.addConstraint(Sketcher.Constraint("Parallel", 3, 7))
sketch18.addConstraint(Sketcher.Constraint("Parallel", 4, 8))
sketch18.addConstraint(Sketcher.Constraint("Parallel", 5, 9))
sketch18.addConstraint(Sketcher.Constraint("Parallel", 7, 10))
sketch18.addConstraint(Sketcher.Constraint("Parallel", 8, 11))
sketch18.addConstraint(Sketcher.Constraint("Parallel", 9, 12))
sketch18.addConstraint(Sketcher.Constraint("Parallel", 14, 17))
sketch18.addConstraint(Sketcher.Constraint("Parallel", 15, 18))
sketch18.addConstraint(Sketcher.Constraint("Parallel", 16, 19))
sketch18.addConstraint(Sketcher.Constraint("Parallel", 21, 24))
sketch18.addConstraint(Sketcher.Constraint("Parallel", 22, 25))
sketch18.addConstraint(Sketcher.Constraint("Parallel", 23, 26))
sketch18.addConstraint(Sketcher.Constraint("Horizontal", 13, 3, 20, 3))
sketch18.addConstraint(Sketcher.Constraint("Vertical", 0, 2, 7, 2))
sketch18.addConstraint(Sketcher.Constraint("Vertical", 1, 2, 8, 2))
sketch18.addConstraint(Sketcher.Constraint("Vertical", 2, 2, 9, 2))
sketch18.addConstraint(Sketcher.Constraint("Vertical", 3, 2, 10, 2))
sketch18.addConstraint(Sketcher.Constraint("Vertical", 4, 2, 11, 2))
sketch18.addConstraint(Sketcher.Constraint("Equal", 0, 1))
sketch18.addConstraint(Sketcher.Constraint("Equal", 1, 2))
sketch18.addConstraint(Sketcher.Constraint("Equal", 2, 3))
sketch18.addConstraint(Sketcher.Constraint("Equal", 12, 14))
sketch18.addConstraint(Sketcher.Constraint("Equal", 14, 15))
sketch18.addConstraint(Sketcher.Constraint("Equal", 15, 16))
sketch18.addConstraint(Sketcher.Constraint("Equal", 16, 17))
sketch18.addConstraint(Sketcher.Constraint("Equal", 19, 21))
sketch18.addConstraint(Sketcher.Constraint("Equal", 21, 22))
sketch18.addConstraint(Sketcher.Constraint("Equal", 22, 23))
sketch18.addConstraint(Sketcher.Constraint("Equal", 23, 24))
sketch18.addConstraint(Sketcher.Constraint("Diameter", 6, Q("3.35 mm")))
sketch18.addConstraint(Sketcher.Constraint("DistanceY", 6, 3, 13, 3, Q("22.9 mm")))
sketch18.addConstraint(Sketcher.Constraint("DistanceX", 20, 3, 13, 3, Q("12.5 mm")))
sketch18.addConstraint(Sketcher.Constraint("DistanceY", 0, 2, 7, 2, Q("22.9 mm")))
sketch18.addConstraint(Sketcher.Constraint("DistanceX", 6, 3, -1, 1, Q("6.25 mm")))
sketch18.addConstraint(Sketcher.Constraint("DistanceY", 5, 2, 21, 2, Q("1.658002 mm")))
sketch18.addConstraint(Sketcher.Constraint("DistanceX", 15, 2, -1, 1, Q("21.595502 mm")))
sketch18.addConstraint(Sketcher.Constraint("DistanceX", 18, 2, -1, 1, Q("15.904498 mm")))
sketch18.addConstraint(Sketcher.Constraint("DistanceX", 21, 2, -1, 1, Q("18.754498 mm")))
sketch18.addConstraint(Sketcher.Constraint("DistanceX", 24, 2, -1, 1, Q("18.745502 mm")))
sketch18.addConstraint(Sketcher.Constraint("DistanceX", 16, 2, 17, 2, Q("2.845502 mm")))
sketch18.addConstraint(Sketcher.Constraint("DistanceY", 15, 2, 17, 2, Q("4.944099 mm")))
sketch18.addConstraint(Sketcher.Constraint("DistanceX", 22, 2, 23, 2, Q("0.004498 mm")))
sketch18.addConstraint(Sketcher.Constraint("DistanceX", 0, 2, -1, 1, Q("6.264481 mm")))
sketch18.addConstraint(Sketcher.Constraint("DistanceY", 2, 2, -1, 1, Q("13.082892 mm")))
sketch18.addConstraint(Sketcher.Constraint("DistanceX", 3, 2, -1, 1, Q("6.235519 mm")))
sketch18.addConstraint(Sketcher.Constraint("DistanceY", 5, 2, -1, 1, Q("9.817108 mm")))
sketch18.addConstraint(Sketcher.Constraint("DistanceY", -1, 1, 16, 2, Q("13.08767 mm")))
sketch18.addConstraint(Sketcher.Constraint("DistanceY", -1, 1, 19, 2, Q("9.81233 mm")))
sketch18.addConstraint(Sketcher.Constraint("DistanceX", 22, 2, -1, 1, Q("15.902252 mm")))
sketch18.addConstraint(Sketcher.Constraint("DistanceY", 1, 2, 0, 2, Q("1.632892 mm")))
pocket11 = body.newObject("PartDesign::Pocket", "Pocket010")
pocket11.Profile = sketch18
pocket11.Length = 1
doc.recompute()

mirrored5 = body.newObject("PartDesign::Mirrored", "Mirrored004")
mirrored5.Originals = [pocket11]
mirrored5.MirrorPlane = (doc.getObject("YZ_Plane"), [""])
body.Tip = mirrored5

# Sketch on XY plane
sketch19 = body.newObject("Sketcher::SketchObject", "Sketch018")
sketch19.AttachmentSupport = (doc.getObject("XY_Plane"), [""])
sketch19.MapMode = "FlatFace"
sketch19.AttachmentOffset = App.Placement(V(0, 0, 19.4), App.Rotation())
add_polygon(sketch19, [(-48, -11.7), (-45.1, -13.4), (-45.1, -16.6), (-48, -18.3), (-50.9, -16.6), (-50.9, -13.4)])  # lines 0-5
sketch19.addGeometry(Part.Circle(V(-48, -15, 0), V(0, 0, 1), 1.7), False)  # 6
add_polygon(sketch19, [(-28, -11.7), (-25.1, -13.4), (-25.1, -16.6), (-28, -18.3), (-30.9, -16.6), (-30.9, -13.4)])  # lines 7-12
sketch19.addGeometry(Part.Circle(V(-28, -15, 0), V(0, 0, 1), 1.7), False)  # 13
add_polygon(sketch19, [(48, -11.7), (50.9, -13.4), (50.9, -16.6), (48, -18.3), (45.1, -16.6), (45.1, -13.4)])  # lines 14-19
sketch19.addGeometry(Part.Circle(V(48, -15, 0), V(0, 0, 1), 1.7), False)  # 20
sketch19.addConstraint(Sketcher.Constraint("Vertical", 1))
sketch19.addConstraint(Sketcher.Constraint("Vertical", 4))
sketch19.addConstraint(Sketcher.Constraint("Vertical", 8))
sketch19.addConstraint(Sketcher.Constraint("Vertical", 11))
sketch19.addConstraint(Sketcher.Constraint("Vertical", 15))
sketch19.addConstraint(Sketcher.Constraint("Vertical", 18))
sketch19.addConstraint(Sketcher.Constraint("Equal", 6, 13))
sketch19.addConstraint(Sketcher.Constraint("Equal", 13, 20))
sketch19.addConstraint(Sketcher.Constraint("Symmetric", 6, 3, 20, 3, -2))
sketch19.addConstraint(Sketcher.Constraint("Symmetric", 4, 2, 14, 2, -2))
sketch19.addConstraint(Sketcher.Constraint("Symmetric", 2, 2, 16, 2, -2))
sketch19.addConstraint(Sketcher.Constraint("Symmetric", 1, 2, 17, 2, -2))
sketch19.addConstraint(Sketcher.Constraint("Symmetric", 5, 2, 19, 2, -2))
sketch19.addConstraint(Sketcher.Constraint("Parallel", 0, 3))
sketch19.addConstraint(Sketcher.Constraint("Parallel", 2, 5))
sketch19.addConstraint(Sketcher.Constraint("Parallel", 3, 7))
sketch19.addConstraint(Sketcher.Constraint("Parallel", 5, 9))
sketch19.addConstraint(Sketcher.Constraint("Parallel", 7, 10))
sketch19.addConstraint(Sketcher.Constraint("Parallel", 9, 12))
sketch19.addConstraint(Sketcher.Constraint("Parallel", 10, 14))
sketch19.addConstraint(Sketcher.Constraint("Parallel", 12, 16))
sketch19.addConstraint(Sketcher.Constraint("Parallel", 16, 19))
sketch19.addConstraint(Sketcher.Constraint("Horizontal", 6, 3, 13, 3))
sketch19.addConstraint(Sketcher.Constraint("Horizontal", 1, 2, 3, 2))
sketch19.addConstraint(Sketcher.Constraint("Horizontal", 0, 2, 4, 2))
sketch19.addConstraint(Sketcher.Constraint("Horizontal", 4, 2, 7, 2))
sketch19.addConstraint(Sketcher.Constraint("Horizontal", 3, 2, 8, 2))
sketch19.addConstraint(Sketcher.Constraint("Horizontal", 2, 2, 9, 2))
sketch19.addConstraint(Sketcher.Constraint("Horizontal", 8, 2, 10, 2))
sketch19.addConstraint(Sketcher.Constraint("Horizontal", 7, 2, 11, 2))
sketch19.addConstraint(Sketcher.Constraint("Vertical", 6, 3, 2, 2))
sketch19.addConstraint(Sketcher.Constraint("Vertical", 13, 3, 9, 2))
sketch19.addConstraint(Sketcher.Constraint("Diameter", 6, Q("3.35 mm")))
sketch19.addConstraint(Sketcher.Constraint("Angle", 0, Q("-30 deg")))
sketch19.addConstraint(Sketcher.Constraint("DistanceX", 6, 3, -1, 1, Q("48 mm")))
sketch19.addConstraint(Sketcher.Constraint("DistanceY", 6, 3, -1, 1, Q("15 mm")))
sketch19.addConstraint(Sketcher.Constraint("DistanceX", 13, 3, -1, 1, Q("28 mm")))
sketch19.addConstraint(Sketcher.Constraint("DistanceX", 3, 2, 1, 2, Q("5.7 mm")))
sketch19.addConstraint(Sketcher.Constraint("DistanceY", 1, 2, 1, 1, Q("3.290897 mm")))
sketch19.addConstraint(Sketcher.Constraint("DistanceY", 0, 2, -1, 1, Q("13.354552 mm")))
pocket12 = body.newObject("PartDesign::Pocket", "Pocket011")
pocket12.Profile = sketch19
pocket12.Length = 1
pocket12.Reversed = True
doc.recompute()

mirrored6 = body.newObject("PartDesign::Mirrored", "Mirrored005")
mirrored6.Originals = [pocket12]
mirrored6.MirrorPlane = (doc.getObject("XY_Plane"), [""])
body.Tip = mirrored6

# Sketch on XZ plane
sketch20 = body.newObject("Sketcher::SketchObject", "Sketch019")
sketch20.AttachmentSupport = (doc.getObject("XZ_Plane"), [""])
sketch20.MapMode = "FlatFace"
sketch20.AttachmentOffset = App.Placement(V(0, 0, -12), App.Rotation())
add_polygon(sketch20, [(-75, -28), (-75, 28), (75, 28), (75, -28)])  # lines 0-3
add_polygon(sketch20, [(70, 24), (-70, 24), (-70, -24), (70, -24)])  # lines 4-7
sketch20.addConstraint(Sketcher.Constraint("Vertical", 0))
sketch20.addConstraint(Sketcher.Constraint("Horizontal", 1))
sketch20.addConstraint(Sketcher.Constraint("Vertical", 2))
sketch20.addConstraint(Sketcher.Constraint("Horizontal", 3))
sketch20.addConstraint(Sketcher.Constraint("Horizontal", 4))
sketch20.addConstraint(Sketcher.Constraint("Vertical", 5))
sketch20.addConstraint(Sketcher.Constraint("Horizontal", 6))
sketch20.addConstraint(Sketcher.Constraint("Vertical", 7))
sketch20.addConstraint(Sketcher.Constraint("Symmetric", 0, 2, 2, 2, -1, 1))
sketch20.addConstraint(Sketcher.Constraint("Symmetric", 4, 2, 6, 2, -1, 1))
sketch20.addConstraint(Sketcher.Constraint("DistanceX", 1, 1, 1, 2, Q("150 mm")))
sketch20.addConstraint(Sketcher.Constraint("DistanceY", 5, 2, 5, 1, Q("49 mm")))
sketch20.addConstraint(Sketcher.Constraint("DistanceX", 4, 2, 4, 1, Q("140.2 mm")))
sketch20.addConstraint(Sketcher.Constraint("DistanceY", 0, 1, 0, 2, Q("55.8 mm")))
pad8 = body.newObject("PartDesign::Pad", "Pad007")
pad8.Profile = sketch20
pad8.Length = 2
pad8.Reversed = True

# Sketch on YZ plane
sketch21 = body.newObject("Sketcher::SketchObject", "Sketch020")
sketch21.AttachmentSupport = (doc.getObject("YZ_Plane"), [""])
sketch21.MapMode = "FlatFace"
sketch21.AttachmentOffset = App.Placement(V(0, 0, 75), App.Rotation())
sketch21.addGeometry(Part.Circle(V(9.8, -5, 0), V(0, 0, 1), 1.6), False)
sketch21.addGeometry(Part.Circle(V(9.8, 5, 0), V(0, 0, 1), 1.6), False)
sketch21.addConstraint(Sketcher.Constraint("Equal", 0, 1))
sketch21.addConstraint(Sketcher.Constraint("Symmetric", 0, 3, 1, 3, -1))
sketch21.addConstraint(Sketcher.Constraint("Diameter", 0, Q("3.25 mm")))
sketch21.addConstraint(Sketcher.Constraint("DistanceY", 0, 3, 1, 3, Q("9.9 mm")))
sketch21.addConstraint(Sketcher.Constraint("DistanceX", -1, 1, 0, 3, Q("9.75 mm")))
pocket13 = body.newObject("PartDesign::Pocket", "Pocket012")
pocket13.Profile = sketch21
pocket13.Type = "ThroughAll"
doc.recompute()

chamfer = body.newObject("PartDesign::Chamfer", "Chamfer")
chamfer.Base = (pocket13, edges_at(pocket13, [
    (-75, 9.75, -3.325),
    (75, 9.75, -3.325),
    (-75, 9.75, 6.575),
    (75, 9.75, 6.575),
]))
chamfer.Size = 1.3

# Sketch on XZ plane
sketch22 = body.newObject("Sketcher::SketchObject", "Sketch021")
sketch22.AttachmentSupport = (doc.getObject("XZ_Plane"), [""])
sketch22.MapMode = "FlatFace"
sketch22.AttachmentOffset = App.Placement(V(0, 0, -1.75), App.Rotation())
add_polygon(sketch22, [(-47.9, 9.9), (-47.9, 6.7), (-45, 5), (-42.1, 6.7), (-42.1, 9.9), (-45, 11.6)])  # lines 0-5
sketch22.addGeometry(Part.Circle(V(-45, 8.3, 0), V(0, 0, 1), 1.7), False)  # 6
sketch22.addConstraint(Sketcher.Constraint("Vertical", 0))
sketch22.addConstraint(Sketcher.Constraint("Vertical", 3))
sketch22.addConstraint(Sketcher.Constraint("Parallel", 1, 4))
sketch22.addConstraint(Sketcher.Constraint("Parallel", 2, 5))
sketch22.addConstraint(Sketcher.Constraint("Horizontal", 0, 2, 2, 2))
sketch22.addConstraint(Sketcher.Constraint("Horizontal", 3, 2, 5, 2))
sketch22.addConstraint(Sketcher.Constraint("Vertical", 6, 3, 1, 2))
sketch22.addConstraint(Sketcher.Constraint("Vertical", 1, 2, 4, 2))
sketch22.addConstraint(Sketcher.Constraint("Diameter", 6, Q("3.35 mm")))
sketch22.addConstraint(Sketcher.Constraint("Angle", 1, Q("-30 deg")))
sketch22.addConstraint(Sketcher.Constraint("DistanceX", 6, 3, -1, 1, Q("45 mm")))
sketch22.addConstraint(Sketcher.Constraint("DistanceY", -1, 1, 6, 3, Q("8.3 mm")))
sketch22.addConstraint(Sketcher.Constraint("DistanceX", 0, 2, 2, 2, Q("5.7 mm")))
sketch22.addConstraint(Sketcher.Constraint("DistanceY", 0, 2, 0, 1, Q("3.290897 mm")))
sketch22.addConstraint(Sketcher.Constraint("DistanceY", -1, 1, 0, 2, Q("6.654552 mm")))
pocket14 = body.newObject("PartDesign::Pocket", "Pocket013")
pocket14.Profile = sketch22
pocket14.Length = 1.75
pocket14.Reversed = True

# Sketch on XZ plane
sketch23 = body.newObject("Sketcher::SketchObject", "Sketch022")
sketch23.AttachmentSupport = (doc.getObject("XZ_Plane"), [""])
sketch23.MapMode = "FlatFace"
sketch23.AttachmentOffset = App.Placement(V(0, 0, -1.75), App.Rotation())
add_polygon(sketch23, [(40.6, 9.9), (40.6, 6.7), (43.5, 5), (46.4, 6.7), (46.4, 9.9), (43.5, 11.6)])  # lines 0-5
sketch23.addGeometry(Part.Circle(V(43.5, 8.3, 0), V(0, 0, 1), 1.7), False)  # 6
sketch23.addConstraint(Sketcher.Constraint("Vertical", 0))
sketch23.addConstraint(Sketcher.Constraint("Vertical", 3))
sketch23.addConstraint(Sketcher.Constraint("Parallel", 1, 4))
sketch23.addConstraint(Sketcher.Constraint("Parallel", 2, 5))
sketch23.addConstraint(Sketcher.Constraint("Horizontal", 0, 2, 2, 2))
sketch23.addConstraint(Sketcher.Constraint("Horizontal", 3, 2, 5, 2))
sketch23.addConstraint(Sketcher.Constraint("Vertical", 6, 3, 1, 2))
sketch23.addConstraint(Sketcher.Constraint("Vertical", 1, 2, 4, 2))
sketch23.addConstraint(Sketcher.Constraint("Diameter", 6, Q("3.35 mm")))
sketch23.addConstraint(Sketcher.Constraint("Angle", 1, Q("-30 deg")))
sketch23.addConstraint(Sketcher.Constraint("DistanceX", -1, 1, 6, 3, Q("43.5 mm")))
sketch23.addConstraint(Sketcher.Constraint("DistanceY", -1, 1, 6, 3, Q("8.3 mm")))
sketch23.addConstraint(Sketcher.Constraint("DistanceX", 0, 2, 2, 2, Q("5.7 mm")))
sketch23.addConstraint(Sketcher.Constraint("DistanceY", 0, 2, 0, 1, Q("3.290897 mm")))
sketch23.addConstraint(Sketcher.Constraint("DistanceY", -1, 1, 0, 2, Q("6.654552 mm")))
pocket15 = body.newObject("PartDesign::Pocket", "Pocket014")
pocket15.Profile = sketch23
pocket15.Length = 1.75
pocket15.Reversed = True
doc.recompute()

mirrored7 = body.newObject("PartDesign::Mirrored", "Mirrored006")
mirrored7.Originals = [pocket14, pocket15]
mirrored7.MirrorPlane = (doc.getObject("XY_Plane"), [""])
body.Tip = mirrored7
doc.recompute()

fillet = body.newObject("PartDesign::Fillet", "Fillet")
fillet.Base = (mirrored7, edges_at(mirrored7, [
    (75, 7, -27.9),
    (-75, 7, -27.9),
    (75, 7, 27.9),
    (-75, 7, 27.9),
]))
fillet.Radius = 2

doc.recompute()
